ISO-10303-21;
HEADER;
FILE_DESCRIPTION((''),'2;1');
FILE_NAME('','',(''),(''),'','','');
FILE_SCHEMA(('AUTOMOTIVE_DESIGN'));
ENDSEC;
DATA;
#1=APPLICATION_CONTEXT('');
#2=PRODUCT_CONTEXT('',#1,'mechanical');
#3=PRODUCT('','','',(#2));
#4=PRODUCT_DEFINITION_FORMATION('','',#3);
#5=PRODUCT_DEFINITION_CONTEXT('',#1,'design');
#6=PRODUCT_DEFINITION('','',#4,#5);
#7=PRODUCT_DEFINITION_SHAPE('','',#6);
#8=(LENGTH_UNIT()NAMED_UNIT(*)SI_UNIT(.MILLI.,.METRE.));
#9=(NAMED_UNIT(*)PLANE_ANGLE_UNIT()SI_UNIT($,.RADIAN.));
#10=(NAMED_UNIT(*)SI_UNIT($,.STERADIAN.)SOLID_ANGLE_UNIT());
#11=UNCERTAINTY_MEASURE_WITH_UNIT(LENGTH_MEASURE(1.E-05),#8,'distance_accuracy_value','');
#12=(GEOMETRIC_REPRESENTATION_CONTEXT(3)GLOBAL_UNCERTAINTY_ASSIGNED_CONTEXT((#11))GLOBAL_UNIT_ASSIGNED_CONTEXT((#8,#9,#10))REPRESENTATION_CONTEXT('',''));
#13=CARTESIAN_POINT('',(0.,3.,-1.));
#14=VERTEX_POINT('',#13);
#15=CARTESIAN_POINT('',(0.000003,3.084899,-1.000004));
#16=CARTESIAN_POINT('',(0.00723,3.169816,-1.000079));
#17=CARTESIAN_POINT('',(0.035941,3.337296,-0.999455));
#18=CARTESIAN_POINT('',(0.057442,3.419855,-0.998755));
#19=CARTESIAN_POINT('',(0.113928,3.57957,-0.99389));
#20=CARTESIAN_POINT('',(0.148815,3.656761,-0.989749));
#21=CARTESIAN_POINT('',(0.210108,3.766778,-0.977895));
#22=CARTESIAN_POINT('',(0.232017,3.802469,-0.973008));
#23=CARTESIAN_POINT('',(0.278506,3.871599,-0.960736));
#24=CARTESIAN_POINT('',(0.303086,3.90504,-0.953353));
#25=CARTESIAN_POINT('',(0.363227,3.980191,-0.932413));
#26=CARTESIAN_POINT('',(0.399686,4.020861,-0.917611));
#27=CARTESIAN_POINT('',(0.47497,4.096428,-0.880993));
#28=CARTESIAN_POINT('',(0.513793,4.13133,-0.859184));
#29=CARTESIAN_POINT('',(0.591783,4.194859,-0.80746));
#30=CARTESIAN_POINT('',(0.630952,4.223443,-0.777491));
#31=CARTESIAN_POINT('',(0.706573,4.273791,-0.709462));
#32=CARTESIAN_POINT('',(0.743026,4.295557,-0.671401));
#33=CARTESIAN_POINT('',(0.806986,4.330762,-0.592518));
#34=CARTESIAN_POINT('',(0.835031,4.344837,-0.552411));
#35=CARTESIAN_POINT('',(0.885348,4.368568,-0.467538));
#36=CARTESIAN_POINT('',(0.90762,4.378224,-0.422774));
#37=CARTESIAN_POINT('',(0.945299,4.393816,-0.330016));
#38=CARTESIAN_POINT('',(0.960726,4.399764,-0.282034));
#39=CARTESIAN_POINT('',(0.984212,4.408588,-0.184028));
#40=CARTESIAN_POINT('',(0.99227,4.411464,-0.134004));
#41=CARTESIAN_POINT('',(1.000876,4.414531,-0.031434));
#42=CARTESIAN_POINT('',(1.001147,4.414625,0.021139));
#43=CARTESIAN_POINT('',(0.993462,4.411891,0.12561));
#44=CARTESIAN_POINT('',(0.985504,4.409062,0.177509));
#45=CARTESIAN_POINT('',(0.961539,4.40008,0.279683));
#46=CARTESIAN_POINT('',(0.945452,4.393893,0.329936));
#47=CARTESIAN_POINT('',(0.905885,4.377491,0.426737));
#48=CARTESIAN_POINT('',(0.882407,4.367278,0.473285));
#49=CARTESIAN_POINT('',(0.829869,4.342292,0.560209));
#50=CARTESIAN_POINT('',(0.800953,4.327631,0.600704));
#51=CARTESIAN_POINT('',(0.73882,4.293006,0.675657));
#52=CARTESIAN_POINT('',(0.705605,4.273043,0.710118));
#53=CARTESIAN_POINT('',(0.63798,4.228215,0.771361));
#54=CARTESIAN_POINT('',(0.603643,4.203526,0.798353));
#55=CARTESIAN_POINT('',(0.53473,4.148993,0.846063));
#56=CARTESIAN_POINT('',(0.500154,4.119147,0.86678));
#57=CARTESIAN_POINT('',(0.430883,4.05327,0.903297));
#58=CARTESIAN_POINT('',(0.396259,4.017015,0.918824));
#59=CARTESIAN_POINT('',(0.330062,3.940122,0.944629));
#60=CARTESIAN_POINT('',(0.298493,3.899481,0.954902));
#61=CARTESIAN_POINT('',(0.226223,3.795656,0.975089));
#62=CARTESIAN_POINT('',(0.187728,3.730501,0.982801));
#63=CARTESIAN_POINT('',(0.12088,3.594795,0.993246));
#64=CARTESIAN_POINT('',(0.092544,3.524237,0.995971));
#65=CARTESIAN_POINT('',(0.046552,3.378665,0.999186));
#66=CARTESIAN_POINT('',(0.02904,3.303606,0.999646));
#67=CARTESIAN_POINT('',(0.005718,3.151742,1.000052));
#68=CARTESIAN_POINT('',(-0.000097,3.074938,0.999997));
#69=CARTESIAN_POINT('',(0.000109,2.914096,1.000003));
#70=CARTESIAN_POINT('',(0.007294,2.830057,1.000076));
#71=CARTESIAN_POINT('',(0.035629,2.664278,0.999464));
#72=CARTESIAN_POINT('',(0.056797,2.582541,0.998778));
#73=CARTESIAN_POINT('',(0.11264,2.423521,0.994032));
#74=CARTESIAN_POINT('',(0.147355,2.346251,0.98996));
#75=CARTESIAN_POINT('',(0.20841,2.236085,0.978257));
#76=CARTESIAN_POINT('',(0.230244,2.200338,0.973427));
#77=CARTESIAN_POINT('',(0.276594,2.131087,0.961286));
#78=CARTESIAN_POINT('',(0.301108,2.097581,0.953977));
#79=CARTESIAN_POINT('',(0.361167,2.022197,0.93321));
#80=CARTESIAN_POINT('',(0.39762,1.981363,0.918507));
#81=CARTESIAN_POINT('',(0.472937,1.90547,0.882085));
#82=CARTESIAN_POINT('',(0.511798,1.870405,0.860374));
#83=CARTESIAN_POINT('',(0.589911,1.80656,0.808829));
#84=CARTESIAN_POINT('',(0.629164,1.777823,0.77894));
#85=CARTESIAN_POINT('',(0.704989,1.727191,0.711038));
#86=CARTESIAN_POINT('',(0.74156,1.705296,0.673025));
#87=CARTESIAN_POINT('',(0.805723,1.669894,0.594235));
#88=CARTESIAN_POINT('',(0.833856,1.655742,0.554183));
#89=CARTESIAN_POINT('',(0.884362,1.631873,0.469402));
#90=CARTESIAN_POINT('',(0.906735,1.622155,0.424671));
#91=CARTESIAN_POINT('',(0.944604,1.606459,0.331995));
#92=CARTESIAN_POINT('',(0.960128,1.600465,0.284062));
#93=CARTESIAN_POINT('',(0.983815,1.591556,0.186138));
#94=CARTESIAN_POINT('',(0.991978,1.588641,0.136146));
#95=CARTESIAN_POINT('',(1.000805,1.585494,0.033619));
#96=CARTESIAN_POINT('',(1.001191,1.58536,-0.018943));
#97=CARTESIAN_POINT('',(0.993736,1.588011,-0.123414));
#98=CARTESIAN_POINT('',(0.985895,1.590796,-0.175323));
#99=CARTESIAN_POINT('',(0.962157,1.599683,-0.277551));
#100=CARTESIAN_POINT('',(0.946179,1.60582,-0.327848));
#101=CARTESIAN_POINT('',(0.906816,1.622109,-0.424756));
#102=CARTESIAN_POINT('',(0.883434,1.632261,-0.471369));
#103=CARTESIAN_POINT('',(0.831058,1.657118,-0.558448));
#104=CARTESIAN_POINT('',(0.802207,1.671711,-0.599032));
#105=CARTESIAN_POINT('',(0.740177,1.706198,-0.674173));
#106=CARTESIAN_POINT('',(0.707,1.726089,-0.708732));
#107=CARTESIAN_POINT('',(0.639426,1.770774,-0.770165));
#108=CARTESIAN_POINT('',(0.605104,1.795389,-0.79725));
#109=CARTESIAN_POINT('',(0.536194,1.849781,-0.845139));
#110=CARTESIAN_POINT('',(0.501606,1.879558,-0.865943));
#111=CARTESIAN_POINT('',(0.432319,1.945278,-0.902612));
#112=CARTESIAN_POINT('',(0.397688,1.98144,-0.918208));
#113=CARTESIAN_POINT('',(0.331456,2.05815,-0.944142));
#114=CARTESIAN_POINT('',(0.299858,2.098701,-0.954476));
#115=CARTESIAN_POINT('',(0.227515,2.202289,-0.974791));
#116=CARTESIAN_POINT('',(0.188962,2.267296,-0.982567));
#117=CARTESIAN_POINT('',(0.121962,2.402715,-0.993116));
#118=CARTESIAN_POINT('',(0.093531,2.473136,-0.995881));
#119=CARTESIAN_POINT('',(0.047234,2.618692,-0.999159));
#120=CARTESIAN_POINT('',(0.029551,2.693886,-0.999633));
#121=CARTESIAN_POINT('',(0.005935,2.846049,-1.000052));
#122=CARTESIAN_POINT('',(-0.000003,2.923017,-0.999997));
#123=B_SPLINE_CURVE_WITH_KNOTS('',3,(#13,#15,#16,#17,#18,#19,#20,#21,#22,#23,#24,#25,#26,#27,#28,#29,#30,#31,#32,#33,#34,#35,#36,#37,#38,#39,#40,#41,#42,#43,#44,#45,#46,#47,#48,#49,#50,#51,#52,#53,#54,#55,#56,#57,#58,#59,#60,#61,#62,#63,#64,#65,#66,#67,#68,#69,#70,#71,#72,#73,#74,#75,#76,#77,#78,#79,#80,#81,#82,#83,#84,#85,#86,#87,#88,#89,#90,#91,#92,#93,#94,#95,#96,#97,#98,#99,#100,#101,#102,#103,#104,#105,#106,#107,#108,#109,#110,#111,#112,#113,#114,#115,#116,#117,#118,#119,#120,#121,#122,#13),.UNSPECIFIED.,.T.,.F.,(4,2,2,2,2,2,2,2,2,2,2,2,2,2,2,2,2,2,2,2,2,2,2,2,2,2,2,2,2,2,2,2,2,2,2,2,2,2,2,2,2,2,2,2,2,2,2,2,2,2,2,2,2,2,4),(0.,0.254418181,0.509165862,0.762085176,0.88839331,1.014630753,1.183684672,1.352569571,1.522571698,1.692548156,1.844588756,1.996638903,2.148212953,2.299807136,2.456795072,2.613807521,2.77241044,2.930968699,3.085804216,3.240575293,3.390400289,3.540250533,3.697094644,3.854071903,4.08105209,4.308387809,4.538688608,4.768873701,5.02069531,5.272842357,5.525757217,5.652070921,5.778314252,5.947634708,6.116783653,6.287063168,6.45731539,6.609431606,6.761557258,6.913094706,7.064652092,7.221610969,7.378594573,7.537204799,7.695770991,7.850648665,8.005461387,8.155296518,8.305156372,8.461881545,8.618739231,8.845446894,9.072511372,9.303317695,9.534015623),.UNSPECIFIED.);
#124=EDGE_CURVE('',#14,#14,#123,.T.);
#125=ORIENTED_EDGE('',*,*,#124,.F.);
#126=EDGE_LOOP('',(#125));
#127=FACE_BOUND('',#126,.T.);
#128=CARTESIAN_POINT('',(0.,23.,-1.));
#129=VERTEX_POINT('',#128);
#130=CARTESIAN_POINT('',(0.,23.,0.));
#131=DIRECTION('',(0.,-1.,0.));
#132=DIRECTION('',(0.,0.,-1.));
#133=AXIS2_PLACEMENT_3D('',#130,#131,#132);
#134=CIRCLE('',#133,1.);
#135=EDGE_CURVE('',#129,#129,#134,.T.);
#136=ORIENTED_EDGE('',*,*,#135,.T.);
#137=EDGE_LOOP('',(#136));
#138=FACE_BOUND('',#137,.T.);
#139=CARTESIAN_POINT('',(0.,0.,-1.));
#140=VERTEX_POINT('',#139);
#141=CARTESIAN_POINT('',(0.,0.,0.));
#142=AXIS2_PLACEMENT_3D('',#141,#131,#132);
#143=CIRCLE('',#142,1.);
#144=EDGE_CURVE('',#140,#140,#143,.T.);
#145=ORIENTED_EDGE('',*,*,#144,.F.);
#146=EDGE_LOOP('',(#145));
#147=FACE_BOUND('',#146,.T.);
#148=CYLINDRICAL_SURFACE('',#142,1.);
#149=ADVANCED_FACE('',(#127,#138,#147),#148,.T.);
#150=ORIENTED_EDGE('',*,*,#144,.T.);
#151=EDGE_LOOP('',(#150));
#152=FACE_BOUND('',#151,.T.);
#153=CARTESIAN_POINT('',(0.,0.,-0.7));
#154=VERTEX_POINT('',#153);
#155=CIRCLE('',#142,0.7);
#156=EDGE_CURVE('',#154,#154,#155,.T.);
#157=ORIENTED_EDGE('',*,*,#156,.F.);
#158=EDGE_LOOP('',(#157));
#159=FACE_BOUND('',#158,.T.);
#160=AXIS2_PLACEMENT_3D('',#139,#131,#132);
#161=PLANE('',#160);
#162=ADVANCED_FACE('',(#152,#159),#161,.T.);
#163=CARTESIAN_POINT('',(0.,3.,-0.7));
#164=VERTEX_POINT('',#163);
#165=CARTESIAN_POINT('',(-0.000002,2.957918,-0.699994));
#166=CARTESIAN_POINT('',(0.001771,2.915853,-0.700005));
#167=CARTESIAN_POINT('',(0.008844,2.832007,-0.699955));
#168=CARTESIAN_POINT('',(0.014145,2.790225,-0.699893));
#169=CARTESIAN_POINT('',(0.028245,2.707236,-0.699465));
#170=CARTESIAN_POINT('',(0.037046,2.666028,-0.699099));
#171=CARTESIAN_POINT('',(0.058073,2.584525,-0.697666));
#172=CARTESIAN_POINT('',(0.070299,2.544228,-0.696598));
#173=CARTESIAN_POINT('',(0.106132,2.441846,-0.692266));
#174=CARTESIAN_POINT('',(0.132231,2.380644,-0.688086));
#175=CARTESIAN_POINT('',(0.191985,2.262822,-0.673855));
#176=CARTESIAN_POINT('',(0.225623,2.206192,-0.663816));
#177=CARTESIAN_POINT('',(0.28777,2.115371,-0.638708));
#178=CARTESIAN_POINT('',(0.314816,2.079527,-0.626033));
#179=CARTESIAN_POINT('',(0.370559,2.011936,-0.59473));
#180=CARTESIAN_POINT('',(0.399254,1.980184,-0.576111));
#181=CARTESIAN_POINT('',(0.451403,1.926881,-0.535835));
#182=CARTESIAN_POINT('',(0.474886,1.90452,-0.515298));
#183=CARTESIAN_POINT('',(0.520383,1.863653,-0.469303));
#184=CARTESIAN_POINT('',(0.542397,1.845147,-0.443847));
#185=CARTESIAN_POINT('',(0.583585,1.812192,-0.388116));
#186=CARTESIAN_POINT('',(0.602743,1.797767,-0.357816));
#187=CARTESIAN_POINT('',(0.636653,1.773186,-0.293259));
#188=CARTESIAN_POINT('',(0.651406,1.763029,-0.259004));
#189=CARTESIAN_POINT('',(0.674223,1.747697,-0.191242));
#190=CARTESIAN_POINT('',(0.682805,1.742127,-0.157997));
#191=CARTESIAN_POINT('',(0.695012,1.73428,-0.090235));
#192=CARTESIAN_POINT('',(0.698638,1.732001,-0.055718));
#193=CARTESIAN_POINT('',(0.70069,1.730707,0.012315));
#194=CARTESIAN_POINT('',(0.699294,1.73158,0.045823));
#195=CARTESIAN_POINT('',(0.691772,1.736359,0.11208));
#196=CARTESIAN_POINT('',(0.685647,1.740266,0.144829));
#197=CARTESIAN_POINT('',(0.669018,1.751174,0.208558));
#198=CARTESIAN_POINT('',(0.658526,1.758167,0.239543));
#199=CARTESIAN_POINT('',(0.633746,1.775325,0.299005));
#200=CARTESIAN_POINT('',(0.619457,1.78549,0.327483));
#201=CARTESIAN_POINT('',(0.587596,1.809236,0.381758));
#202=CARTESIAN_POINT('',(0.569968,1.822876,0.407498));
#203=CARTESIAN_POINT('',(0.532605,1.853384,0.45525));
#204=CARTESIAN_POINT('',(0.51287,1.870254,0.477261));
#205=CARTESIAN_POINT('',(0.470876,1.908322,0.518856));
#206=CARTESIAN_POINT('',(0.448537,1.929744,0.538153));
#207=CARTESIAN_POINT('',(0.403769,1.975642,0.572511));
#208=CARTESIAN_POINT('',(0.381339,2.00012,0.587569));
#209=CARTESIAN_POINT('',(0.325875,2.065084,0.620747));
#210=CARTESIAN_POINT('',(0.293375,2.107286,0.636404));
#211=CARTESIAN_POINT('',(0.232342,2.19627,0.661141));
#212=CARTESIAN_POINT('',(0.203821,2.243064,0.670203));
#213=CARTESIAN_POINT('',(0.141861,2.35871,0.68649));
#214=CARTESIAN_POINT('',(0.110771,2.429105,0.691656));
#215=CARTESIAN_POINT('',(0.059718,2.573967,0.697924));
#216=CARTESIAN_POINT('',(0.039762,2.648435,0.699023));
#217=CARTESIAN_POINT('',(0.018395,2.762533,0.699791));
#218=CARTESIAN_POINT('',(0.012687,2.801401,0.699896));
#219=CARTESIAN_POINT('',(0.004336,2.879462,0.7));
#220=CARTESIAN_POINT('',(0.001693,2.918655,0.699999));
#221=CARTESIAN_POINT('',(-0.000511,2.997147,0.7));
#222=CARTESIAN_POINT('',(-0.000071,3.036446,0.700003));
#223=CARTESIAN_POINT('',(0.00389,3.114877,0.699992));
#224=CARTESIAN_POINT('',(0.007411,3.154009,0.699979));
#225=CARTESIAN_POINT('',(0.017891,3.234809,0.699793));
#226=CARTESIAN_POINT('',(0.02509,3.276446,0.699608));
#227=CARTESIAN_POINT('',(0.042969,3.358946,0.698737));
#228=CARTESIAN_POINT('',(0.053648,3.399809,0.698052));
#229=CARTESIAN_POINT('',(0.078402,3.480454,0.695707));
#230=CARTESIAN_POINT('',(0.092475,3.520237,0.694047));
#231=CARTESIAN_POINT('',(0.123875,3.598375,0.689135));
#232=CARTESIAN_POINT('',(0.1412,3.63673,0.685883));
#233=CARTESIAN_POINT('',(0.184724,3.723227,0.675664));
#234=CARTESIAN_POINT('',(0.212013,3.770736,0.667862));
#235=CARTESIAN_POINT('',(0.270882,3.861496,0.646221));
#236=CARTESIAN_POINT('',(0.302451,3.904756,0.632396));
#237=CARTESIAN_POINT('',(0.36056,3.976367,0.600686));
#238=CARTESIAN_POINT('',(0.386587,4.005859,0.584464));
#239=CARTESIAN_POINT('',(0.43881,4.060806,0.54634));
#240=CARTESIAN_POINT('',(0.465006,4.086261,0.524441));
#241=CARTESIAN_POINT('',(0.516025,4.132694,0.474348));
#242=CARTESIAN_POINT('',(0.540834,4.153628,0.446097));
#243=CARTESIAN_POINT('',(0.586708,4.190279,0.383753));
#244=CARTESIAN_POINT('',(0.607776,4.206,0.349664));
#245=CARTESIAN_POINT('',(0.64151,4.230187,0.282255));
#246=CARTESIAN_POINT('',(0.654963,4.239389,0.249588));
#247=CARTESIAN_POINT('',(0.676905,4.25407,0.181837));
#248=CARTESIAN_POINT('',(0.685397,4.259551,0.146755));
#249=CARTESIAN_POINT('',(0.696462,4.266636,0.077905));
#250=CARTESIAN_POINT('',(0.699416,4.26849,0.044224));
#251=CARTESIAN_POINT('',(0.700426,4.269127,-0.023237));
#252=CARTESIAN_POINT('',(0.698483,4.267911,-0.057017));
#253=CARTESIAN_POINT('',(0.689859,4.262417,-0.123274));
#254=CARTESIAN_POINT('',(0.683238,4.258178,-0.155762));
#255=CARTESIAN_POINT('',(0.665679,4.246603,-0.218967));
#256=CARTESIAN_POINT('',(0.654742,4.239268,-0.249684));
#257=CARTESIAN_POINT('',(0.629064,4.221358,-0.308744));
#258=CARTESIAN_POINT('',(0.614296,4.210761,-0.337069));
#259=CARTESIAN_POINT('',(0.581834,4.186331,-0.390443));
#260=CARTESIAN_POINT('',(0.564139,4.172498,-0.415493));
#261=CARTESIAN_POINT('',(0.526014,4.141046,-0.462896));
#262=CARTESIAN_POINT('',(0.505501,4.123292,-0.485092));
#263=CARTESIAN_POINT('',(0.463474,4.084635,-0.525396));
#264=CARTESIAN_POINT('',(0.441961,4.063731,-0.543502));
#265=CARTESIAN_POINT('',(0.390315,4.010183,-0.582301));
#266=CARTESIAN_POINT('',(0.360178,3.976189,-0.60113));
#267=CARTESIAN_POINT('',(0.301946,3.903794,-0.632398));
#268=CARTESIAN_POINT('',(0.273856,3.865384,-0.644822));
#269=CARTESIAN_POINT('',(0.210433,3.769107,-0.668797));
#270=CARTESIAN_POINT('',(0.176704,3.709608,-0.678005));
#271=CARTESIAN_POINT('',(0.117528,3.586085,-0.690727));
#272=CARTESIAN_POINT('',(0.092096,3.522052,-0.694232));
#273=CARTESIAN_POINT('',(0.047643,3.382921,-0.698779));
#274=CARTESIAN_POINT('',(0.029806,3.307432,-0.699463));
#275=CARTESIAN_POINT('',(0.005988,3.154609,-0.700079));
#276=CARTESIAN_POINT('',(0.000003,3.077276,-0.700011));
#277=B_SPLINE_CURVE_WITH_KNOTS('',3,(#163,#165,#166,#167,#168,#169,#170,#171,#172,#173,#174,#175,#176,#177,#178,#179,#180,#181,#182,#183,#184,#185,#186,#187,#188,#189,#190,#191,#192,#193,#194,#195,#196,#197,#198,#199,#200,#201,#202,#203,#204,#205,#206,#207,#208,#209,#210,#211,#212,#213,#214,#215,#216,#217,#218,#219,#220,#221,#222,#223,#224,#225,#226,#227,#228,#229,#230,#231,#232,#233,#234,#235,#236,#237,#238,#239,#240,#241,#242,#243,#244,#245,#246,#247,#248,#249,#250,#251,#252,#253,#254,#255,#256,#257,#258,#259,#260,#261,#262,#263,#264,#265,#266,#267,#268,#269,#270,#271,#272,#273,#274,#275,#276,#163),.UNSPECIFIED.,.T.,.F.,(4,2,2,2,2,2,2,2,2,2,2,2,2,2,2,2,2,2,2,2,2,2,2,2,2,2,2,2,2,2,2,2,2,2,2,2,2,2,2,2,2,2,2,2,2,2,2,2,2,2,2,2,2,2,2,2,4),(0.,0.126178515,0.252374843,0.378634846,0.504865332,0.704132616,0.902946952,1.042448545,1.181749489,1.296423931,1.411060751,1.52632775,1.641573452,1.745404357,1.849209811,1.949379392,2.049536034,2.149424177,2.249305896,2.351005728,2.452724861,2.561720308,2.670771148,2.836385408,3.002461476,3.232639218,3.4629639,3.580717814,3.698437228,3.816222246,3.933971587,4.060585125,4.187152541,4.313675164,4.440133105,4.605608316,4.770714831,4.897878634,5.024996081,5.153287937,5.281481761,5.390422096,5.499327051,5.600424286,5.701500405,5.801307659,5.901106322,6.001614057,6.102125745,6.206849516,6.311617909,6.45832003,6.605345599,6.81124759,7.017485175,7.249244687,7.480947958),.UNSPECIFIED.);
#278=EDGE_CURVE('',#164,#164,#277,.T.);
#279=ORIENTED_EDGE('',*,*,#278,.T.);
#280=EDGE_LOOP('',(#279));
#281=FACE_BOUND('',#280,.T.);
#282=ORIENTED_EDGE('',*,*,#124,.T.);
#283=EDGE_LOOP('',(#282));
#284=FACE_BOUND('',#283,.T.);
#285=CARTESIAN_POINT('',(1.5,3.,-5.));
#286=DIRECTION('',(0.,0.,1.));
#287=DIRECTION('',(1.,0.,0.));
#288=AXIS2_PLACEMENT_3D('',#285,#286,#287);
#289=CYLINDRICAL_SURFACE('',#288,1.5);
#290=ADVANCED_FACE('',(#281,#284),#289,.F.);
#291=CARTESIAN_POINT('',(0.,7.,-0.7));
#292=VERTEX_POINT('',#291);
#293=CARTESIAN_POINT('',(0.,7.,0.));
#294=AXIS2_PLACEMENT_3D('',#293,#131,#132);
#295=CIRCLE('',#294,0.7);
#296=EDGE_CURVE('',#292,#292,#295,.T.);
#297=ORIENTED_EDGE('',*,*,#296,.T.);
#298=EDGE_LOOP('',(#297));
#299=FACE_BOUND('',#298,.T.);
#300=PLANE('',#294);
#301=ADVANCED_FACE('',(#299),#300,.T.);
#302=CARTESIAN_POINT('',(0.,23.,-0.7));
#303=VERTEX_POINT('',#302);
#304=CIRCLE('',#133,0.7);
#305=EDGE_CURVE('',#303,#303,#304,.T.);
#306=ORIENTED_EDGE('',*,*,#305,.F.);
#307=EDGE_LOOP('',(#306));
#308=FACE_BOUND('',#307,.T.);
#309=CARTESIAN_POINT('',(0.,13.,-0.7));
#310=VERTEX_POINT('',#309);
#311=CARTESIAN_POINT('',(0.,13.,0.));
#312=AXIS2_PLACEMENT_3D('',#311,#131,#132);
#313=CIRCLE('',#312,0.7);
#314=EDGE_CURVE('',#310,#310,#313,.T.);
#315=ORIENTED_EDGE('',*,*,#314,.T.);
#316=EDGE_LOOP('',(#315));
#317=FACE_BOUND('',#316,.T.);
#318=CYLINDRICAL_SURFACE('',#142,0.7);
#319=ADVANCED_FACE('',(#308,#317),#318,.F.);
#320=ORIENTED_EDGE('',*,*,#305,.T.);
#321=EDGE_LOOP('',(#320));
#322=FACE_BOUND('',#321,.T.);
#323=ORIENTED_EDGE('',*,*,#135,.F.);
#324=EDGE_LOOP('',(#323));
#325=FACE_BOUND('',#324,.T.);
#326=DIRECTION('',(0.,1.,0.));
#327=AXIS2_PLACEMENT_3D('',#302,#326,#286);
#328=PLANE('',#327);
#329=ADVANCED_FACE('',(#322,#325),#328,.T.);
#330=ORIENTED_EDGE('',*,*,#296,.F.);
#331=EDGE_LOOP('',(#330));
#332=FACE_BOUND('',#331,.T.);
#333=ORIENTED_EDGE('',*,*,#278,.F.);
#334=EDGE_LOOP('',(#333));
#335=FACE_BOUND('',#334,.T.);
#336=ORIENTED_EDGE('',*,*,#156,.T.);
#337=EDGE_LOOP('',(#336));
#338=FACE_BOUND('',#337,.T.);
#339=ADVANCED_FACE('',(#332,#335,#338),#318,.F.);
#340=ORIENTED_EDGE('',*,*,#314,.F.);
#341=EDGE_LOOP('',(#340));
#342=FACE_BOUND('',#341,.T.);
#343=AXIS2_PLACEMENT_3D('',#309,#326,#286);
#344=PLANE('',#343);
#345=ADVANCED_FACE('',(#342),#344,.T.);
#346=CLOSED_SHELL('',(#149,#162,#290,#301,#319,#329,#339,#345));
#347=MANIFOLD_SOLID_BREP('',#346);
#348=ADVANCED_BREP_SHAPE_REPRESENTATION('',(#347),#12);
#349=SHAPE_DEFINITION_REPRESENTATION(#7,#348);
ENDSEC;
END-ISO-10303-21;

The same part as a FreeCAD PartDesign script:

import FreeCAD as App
import Part
import Sketcher
Q = App.Units.Quantity

doc = App.newDocument("Part")
body = doc.addObject("PartDesign::Body", "Body")

# Sketch on YZ plane
sketch1 = doc.addObject("Sketcher::SketchObject", "Sketch")
body.addObject(sketch1)
sketch1.AttachmentSupport = (doc.YZ_Plane, [""])
sketch1.MapMode = "FlatFace"
sketch1.addGeometry(Part.LineSegment(App.Vector(13, -0.7, 0), App.Vector(13, 0, 0)), False)
sketch1.addGeometry(Part.LineSegment(App.Vector(13, 0, 0), App.Vector(7, 0, 0)), False)
sketch1.addGeometry(Part.LineSegment(App.Vector(7, 0, 0), App.Vector(7, -0.7, 0)), False)
sketch1.addGeometry(Part.LineSegment(App.Vector(7, -0.7, 0), App.Vector(0, -0.7, 0)), False)
sketch1.addGeometry(Part.LineSegment(App.Vector(0, -0.7, 0), App.Vector(0, -1, 0)), False)
sketch1.addGeometry(Part.LineSegment(App.Vector(0, -1, 0), App.Vector(23, -1, 0)), False)
sketch1.addGeometry(Part.LineSegment(App.Vector(23, -1, 0), App.Vector(23, -0.7, 0)), False)
sketch1.addGeometry(Part.LineSegment(App.Vector(23, -0.7, 0), App.Vector(13, -0.7, 0)), False)
sketch1.addConstraint(Sketcher.Constraint("Coincident", 0, 2, 1, 1))
sketch1.addConstraint(Sketcher.Constraint("Coincident", 1, 2, 2, 1))
sketch1.addConstraint(Sketcher.Constraint("Coincident", 2, 2, 3, 1))
sketch1.addConstraint(Sketcher.Constraint("Coincident", 3, 2, 4, 1))
sketch1.addConstraint(Sketcher.Constraint("Coincident", 4, 2, 5, 1))
sketch1.addConstraint(Sketcher.Constraint("Coincident", 5, 2, 6, 1))
sketch1.addConstraint(Sketcher.Constraint("Coincident", 6, 2, 7, 1))
sketch1.addConstraint(Sketcher.Constraint("Coincident", 7, 2, 0, 1))
sketch1.addConstraint(Sketcher.Constraint("Vertical", 0))
sketch1.addConstraint(Sketcher.Constraint("Horizontal", 1))
sketch1.addConstraint(Sketcher.Constraint("Vertical", 2))
sketch1.addConstraint(Sketcher.Constraint("Horizontal", 3))
sketch1.addConstraint(Sketcher.Constraint("Vertical", 4))
sketch1.addConstraint(Sketcher.Constraint("Horizontal", 5))
sketch1.addConstraint(Sketcher.Constraint("Vertical", 6))
sketch1.addConstraint(Sketcher.Constraint("Horizontal", 7))
sketch1.addConstraint(Sketcher.Constraint("PointOnObject", 0, 2, -1))
sketch1.addConstraint(Sketcher.Constraint("PointOnObject", 3, 2, -2))
sketch1.addConstraint(Sketcher.Constraint("Horizontal", 3, 2, 6, 2))
sketch1.addConstraint(Sketcher.Constraint("DistanceX", 1, 2, 1, 1, Q("6 mm")))
sketch1.addConstraint(Sketcher.Constraint("DistanceX", 3, 2, 3, 1, Q("7 mm")))
sketch1.addConstraint(Sketcher.Constraint("DistanceX", 5, 1, 5, 2, Q("23 mm")))
sketch1.addConstraint(Sketcher.Constraint("DistanceY", 0, 1, 0, 2, Q("0.7 mm")))
sketch1.addConstraint(Sketcher.Constraint("DistanceY", 4, 2, 4, 1, Q("0.3 mm")))
revolution = doc.addObject("PartDesign::Revolution", "Revolution")
body.addObject(revolution)
revolution.Profile = sketch1
revolution.ReferenceAxis = (sketch1, ["H_Axis"])
revolution.Angle = 360

# Sketch on XY plane
sketch2 = doc.addObject("Sketcher::SketchObject", "Sketch001")
body.addObject(sketch2)
sketch2.AttachmentSupport = (doc.XY_Plane, [""])
sketch2.MapMode = "FlatFace"
sketch2.addGeometry(Part.Circle(App.Vector(1.5, 3, 0), App.Vector(0, 0, 1), 1.5), False)
sketch2.addConstraint(Sketcher.Constraint("Diameter", 0, Q("3 mm")))
sketch2.addConstraint(Sketcher.Constraint("DistanceY", -1, 1, 0, 3, Q("3 mm")))
sketch2.addConstraint(Sketcher.Constraint("DistanceX", -1, 1, 0, 3, Q("1.5 mm")))
pocket1 = doc.addObject("PartDesign::Pocket", "Pocket")
body.addObject(pocket1)
pocket1.Profile = sketch2
pocket1.Length = 10
pocket1.Midplane = True

doc.recompute()
